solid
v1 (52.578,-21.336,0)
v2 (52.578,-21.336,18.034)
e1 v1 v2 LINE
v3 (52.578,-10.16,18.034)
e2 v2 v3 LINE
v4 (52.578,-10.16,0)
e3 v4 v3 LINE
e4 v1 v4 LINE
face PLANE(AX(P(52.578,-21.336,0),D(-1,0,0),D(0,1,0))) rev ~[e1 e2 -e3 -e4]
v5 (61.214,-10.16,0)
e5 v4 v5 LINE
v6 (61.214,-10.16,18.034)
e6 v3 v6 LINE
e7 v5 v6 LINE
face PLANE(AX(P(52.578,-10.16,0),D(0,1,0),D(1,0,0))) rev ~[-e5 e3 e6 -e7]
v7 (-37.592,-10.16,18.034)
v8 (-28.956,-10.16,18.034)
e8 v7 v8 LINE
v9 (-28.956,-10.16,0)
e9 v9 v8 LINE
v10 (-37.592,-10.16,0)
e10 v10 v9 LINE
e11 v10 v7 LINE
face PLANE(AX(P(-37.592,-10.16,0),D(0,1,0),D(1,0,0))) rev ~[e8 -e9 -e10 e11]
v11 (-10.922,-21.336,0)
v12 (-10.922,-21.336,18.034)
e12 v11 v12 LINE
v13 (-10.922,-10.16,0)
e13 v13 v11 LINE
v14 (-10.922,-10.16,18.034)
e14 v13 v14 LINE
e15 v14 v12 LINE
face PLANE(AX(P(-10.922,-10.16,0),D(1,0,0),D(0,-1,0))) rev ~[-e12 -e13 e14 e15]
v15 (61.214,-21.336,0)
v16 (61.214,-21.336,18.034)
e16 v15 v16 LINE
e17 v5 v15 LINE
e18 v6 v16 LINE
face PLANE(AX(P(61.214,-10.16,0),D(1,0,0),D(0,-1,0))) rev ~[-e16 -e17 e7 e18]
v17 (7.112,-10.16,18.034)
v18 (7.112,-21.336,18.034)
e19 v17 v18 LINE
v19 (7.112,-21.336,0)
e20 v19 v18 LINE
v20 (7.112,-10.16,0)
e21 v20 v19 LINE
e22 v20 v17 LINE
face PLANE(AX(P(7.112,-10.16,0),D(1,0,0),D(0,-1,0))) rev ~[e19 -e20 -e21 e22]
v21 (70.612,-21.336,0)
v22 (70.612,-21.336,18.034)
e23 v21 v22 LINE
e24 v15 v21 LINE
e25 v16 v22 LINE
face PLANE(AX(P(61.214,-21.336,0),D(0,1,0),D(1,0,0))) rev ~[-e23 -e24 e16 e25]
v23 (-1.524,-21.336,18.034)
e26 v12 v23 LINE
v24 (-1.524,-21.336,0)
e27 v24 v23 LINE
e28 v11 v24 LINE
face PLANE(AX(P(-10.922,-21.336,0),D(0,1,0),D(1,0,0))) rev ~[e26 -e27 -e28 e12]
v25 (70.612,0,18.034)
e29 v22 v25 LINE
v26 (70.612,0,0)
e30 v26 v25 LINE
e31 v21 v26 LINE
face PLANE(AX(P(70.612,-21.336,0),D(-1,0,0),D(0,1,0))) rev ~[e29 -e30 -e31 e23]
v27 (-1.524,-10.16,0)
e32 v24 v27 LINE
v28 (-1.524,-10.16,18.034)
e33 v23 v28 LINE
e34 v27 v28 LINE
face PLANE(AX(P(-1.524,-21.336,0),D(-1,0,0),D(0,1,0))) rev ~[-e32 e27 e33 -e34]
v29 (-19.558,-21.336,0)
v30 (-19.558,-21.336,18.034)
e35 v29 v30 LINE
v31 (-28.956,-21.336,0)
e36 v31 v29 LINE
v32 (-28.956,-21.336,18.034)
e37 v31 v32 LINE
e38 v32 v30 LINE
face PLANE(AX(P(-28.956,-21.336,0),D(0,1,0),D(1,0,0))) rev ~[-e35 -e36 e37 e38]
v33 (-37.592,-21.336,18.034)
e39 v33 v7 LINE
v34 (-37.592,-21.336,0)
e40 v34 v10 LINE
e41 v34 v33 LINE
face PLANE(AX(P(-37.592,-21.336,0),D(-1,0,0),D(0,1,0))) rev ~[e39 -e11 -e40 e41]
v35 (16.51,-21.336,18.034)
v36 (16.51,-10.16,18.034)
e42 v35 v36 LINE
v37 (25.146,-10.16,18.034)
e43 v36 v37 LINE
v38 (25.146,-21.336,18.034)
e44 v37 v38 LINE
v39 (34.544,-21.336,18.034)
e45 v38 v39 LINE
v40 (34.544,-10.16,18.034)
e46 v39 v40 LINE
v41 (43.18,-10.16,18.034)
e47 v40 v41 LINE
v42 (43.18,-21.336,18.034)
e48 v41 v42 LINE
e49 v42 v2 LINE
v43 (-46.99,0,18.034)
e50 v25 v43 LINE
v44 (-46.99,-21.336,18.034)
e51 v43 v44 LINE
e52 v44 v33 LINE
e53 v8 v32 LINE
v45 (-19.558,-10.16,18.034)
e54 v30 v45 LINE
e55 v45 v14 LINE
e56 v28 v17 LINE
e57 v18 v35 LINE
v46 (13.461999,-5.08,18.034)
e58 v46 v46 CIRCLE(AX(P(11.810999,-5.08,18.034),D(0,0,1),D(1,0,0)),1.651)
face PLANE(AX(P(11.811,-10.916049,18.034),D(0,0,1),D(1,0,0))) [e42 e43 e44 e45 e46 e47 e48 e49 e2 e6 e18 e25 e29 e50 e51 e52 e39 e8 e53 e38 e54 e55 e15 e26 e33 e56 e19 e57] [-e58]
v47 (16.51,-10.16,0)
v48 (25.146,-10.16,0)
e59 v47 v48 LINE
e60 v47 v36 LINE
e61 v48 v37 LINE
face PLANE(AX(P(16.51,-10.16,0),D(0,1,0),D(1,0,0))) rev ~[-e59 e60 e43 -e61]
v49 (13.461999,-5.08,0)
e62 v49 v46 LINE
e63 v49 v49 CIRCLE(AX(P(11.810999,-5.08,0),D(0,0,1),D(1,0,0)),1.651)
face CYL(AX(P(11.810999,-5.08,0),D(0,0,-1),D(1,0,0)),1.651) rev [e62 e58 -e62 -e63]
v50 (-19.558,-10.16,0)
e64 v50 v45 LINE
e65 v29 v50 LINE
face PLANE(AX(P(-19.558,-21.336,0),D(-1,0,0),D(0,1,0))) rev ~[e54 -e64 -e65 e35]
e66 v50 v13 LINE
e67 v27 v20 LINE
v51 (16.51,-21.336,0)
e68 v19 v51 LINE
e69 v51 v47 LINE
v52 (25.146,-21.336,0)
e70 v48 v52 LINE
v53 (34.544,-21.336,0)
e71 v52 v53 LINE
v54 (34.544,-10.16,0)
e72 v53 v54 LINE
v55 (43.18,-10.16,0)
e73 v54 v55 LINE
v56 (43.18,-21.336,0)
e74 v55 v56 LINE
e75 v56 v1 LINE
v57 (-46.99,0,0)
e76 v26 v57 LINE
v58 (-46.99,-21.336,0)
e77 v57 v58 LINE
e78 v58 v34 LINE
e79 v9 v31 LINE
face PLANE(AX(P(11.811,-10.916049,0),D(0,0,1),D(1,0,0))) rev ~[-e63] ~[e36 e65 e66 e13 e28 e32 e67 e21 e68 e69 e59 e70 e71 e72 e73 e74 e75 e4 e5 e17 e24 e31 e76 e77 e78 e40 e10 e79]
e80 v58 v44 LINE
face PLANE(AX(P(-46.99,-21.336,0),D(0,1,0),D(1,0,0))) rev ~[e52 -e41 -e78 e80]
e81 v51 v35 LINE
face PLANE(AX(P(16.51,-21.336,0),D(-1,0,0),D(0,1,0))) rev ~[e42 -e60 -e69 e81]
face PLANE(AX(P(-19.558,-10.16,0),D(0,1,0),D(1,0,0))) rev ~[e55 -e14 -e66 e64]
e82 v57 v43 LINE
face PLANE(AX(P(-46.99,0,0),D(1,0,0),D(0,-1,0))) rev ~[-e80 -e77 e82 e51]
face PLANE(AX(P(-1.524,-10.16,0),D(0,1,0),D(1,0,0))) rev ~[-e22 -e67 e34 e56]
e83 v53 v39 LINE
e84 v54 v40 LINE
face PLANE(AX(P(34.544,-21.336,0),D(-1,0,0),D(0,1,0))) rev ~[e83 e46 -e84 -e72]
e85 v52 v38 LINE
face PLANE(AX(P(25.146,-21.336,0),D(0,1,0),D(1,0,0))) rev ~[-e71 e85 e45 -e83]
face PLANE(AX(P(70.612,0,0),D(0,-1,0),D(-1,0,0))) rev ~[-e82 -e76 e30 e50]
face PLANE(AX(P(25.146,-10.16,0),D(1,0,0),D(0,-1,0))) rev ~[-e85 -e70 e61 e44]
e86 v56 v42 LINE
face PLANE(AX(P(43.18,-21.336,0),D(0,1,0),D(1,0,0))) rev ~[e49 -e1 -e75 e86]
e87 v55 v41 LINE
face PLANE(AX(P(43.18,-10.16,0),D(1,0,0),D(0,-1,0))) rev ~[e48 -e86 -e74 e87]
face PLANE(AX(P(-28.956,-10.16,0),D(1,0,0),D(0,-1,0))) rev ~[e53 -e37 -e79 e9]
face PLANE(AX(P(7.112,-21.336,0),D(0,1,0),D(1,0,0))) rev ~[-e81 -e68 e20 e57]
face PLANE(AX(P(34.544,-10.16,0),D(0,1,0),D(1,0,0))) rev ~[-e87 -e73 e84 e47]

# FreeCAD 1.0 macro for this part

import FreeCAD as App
import Part
import Sketcher
Q = App.Units.Quantity

doc = App.newDocument("Part")
body = doc.addObject("PartDesign::Body", "Body")

# Sketch on XY plane
sketch1 = doc.addObject("Sketcher::SketchObject", "Sketch")
body.addObject(sketch1)
sketch1.AttachmentSupport = (doc.XY_Plane, [""])
sketch1.MapMode = "FlatFace"
sketch1.addGeometry(Part.LineSegment(App.Vector(70.6, 0, 0), App.Vector(-47, 0, 0)), False)
sketch1.addGeometry(Part.LineSegment(App.Vector(-47, 0, 0), App.Vector(-47, -21.3, 0)), False)
sketch1.addGeometry(Part.LineSegment(App.Vector(-47, -21.3, 0), App.Vector(-37.6, -21.3, 0)), False)
sketch1.addGeometry(Part.LineSegment(App.Vector(-37.6, -21.3, 0), App.Vector(-37.6, -10.2, 0)), False)
sketch1.addGeometry(Part.LineSegment(App.Vector(-37.6, -10.2, 0), App.Vector(-29, -10.2, 0)), False)
sketch1.addGeometry(Part.LineSegment(App.Vector(-29, -10.2, 0), App.Vector(-29, -21.3, 0)), False)
sketch1.addGeometry(Part.LineSegment(App.Vector(-29, -21.3, 0), App.Vector(-19.6, -21.3, 0)), False)
sketch1.addGeometry(Part.LineSegment(App.Vector(-19.6, -21.3, 0), App.Vector(-19.6, -10.2, 0)), False)
sketch1.addGeometry(Part.LineSegment(App.Vector(-19.6, -10.2, 0), App.Vector(-10.9, -10.2, 0)), False)
sketch1.addGeometry(Part.LineSegment(App.Vector(-10.9, -10.2, 0), App.Vector(-10.9, -21.3, 0)), False)
sketch1.addGeometry(Part.LineSegment(App.Vector(-10.9, -21.3, 0), App.Vector(-1.5, -21.3, 0)), False)
sketch1.addGeometry(Part.LineSegment(App.Vector(-1.5, -21.3, 0), App.Vector(-1.5, -10.2, 0)), False)
sketch1.addGeometry(Part.LineSegment(App.Vector(-1.5, -10.2, 0), App.Vector(7.1, -10.2, 0)), False)
sketch1.addGeometry(Part.LineSegment(App.Vector(7.1, -10.2, 0), App.Vector(7.1, -21.3, 0)), False)
sketch1.addGeometry(Part.LineSegment(App.Vector(7.1, -21.3, 0), App.Vector(16.5, -21.3, 0)), False)
sketch1.addGeometry(Part.LineSegment(App.Vector(16.5, -21.3, 0), App.Vector(16.5, -10.2, 0)), False)
sketch1.addGeometry(Part.LineSegment(App.Vector(16.5, -10.2, 0), App.Vector(25.1, -10.2, 0)), False)
sketch1.addGeometry(Part.LineSegment(App.Vector(25.1, -10.2, 0), App.Vector(25.1, -21.3, 0)), False)
sketch1.addGeometry(Part.LineSegment(App.Vector(25.1, -21.3, 0), App.Vector(34.5, -21.3, 0)), False)
sketch1.addGeometry(Part.LineSegment(App.Vector(34.5, -21.3, 0), App.Vector(34.5, -10.2, 0)), False)
sketch1.addGeometry(Part.LineSegment(App.Vector(34.5, -10.2, 0), App.Vector(43.2, -10.2, 0)), False)
sketch1.addGeometry(Part.LineSegment(App.Vector(43.2, -10.2, 0), App.Vector(43.2, -21.3, 0)), False)
sketch1.addGeometry(Part.LineSegment(App.Vector(43.2, -21.3, 0), App.Vector(52.6, -21.3, 0)), False)
sketch1.addGeometry(Part.LineSegment(App.Vector(52.6, -21.3, 0), App.Vector(52.6, -10.2, 0)), False)
sketch1.addGeometry(Part.LineSegment(App.Vector(52.6, -10.2, 0), App.Vector(61.2, -10.2, 0)), False)
sketch1.addGeometry(Part.LineSegment(App.Vector(61.2, -10.2, 0), App.Vector(61.2, -21.3, 0)), False)
sketch1.addGeometry(Part.LineSegment(App.Vector(61.2, -21.3, 0), App.Vector(70.6, -21.3, 0)), False)
sketch1.addGeometry(Part.LineSegment(App.Vector(70.6, -21.3, 0), App.Vector(70.6, 0, 0)), False)
sketch1.addGeometry(Part.Circle(App.Vector(11.8, -5.1, 0), App.Vector(0, 0, 1), 1.7), False)
sketch1.addConstraint(Sketcher.Constraint("Coincident", 0, 2, 1, 1))
sketch1.addConstraint(Sketcher.Constraint("Coincident", 1, 2, 2, 1))
sketch1.addConstraint(Sketcher.Constraint("Coincident", 2, 2, 3, 1))
sketch1.addConstraint(Sketcher.Constraint("Coincident", 3, 2, 4, 1))
sketch1.addConstraint(Sketcher.Constraint("Coincident", 4, 2, 5, 1))
sketch1.addConstraint(Sketcher.Constraint("Coincident", 5, 2, 6, 1))
sketch1.addConstraint(Sketcher.Constraint("Coincident", 6, 2, 7, 1))
sketch1.addConstraint(Sketcher.Constraint("Coincident", 7, 2, 8, 1))
sketch1.addConstraint(Sketcher.Constraint("Coincident", 8, 2, 9, 1))
sketch1.addConstraint(Sketcher.Constraint("Coincident", 9, 2, 10, 1))
sketch1.addConstraint(Sketcher.Constraint("Coincident", 10, 2, 11, 1))
sketch1.addConstraint(Sketcher.Constraint("Coincident", 11, 2, 12, 1))
sketch1.addConstraint(Sketcher.Constraint("Coincident", 12, 2, 13, 1))
sketch1.addConstraint(Sketcher.Constraint("Coincident", 13, 2, 14, 1))
sketch1.addConstraint(Sketcher.Constraint("Coincident", 14, 2, 15, 1))
sketch1.addConstraint(Sketcher.Constraint("Coincident", 15, 2, 16, 1))
sketch1.addConstraint(Sketcher.Constraint("Coincident", 16, 2, 17, 1))
sketch1.addConstraint(Sketcher.Constraint("Coincident", 17, 2, 18, 1))
sketch1.addConstraint(Sketcher.Constraint("Coincident", 18, 2, 19, 1))
sketch1.addConstraint(Sketcher.Constraint("Coincident", 19, 2, 20, 1))
sketch1.addConstraint(Sketcher.Constraint("Coincident", 20, 2, 21, 1))
sketch1.addConstraint(Sketcher.Constraint("Coincident", 21, 2, 22, 1))
sketch1.addConstraint(Sketcher.Constraint("Coincident", 22, 2, 23, 1))
sketch1.addConstraint(Sketcher.Constraint("Coincident", 23, 2, 24, 1))
sketch1.addConstraint(Sketcher.Constraint("Coincident", 24, 2, 25, 1))
sketch1.addConstraint(Sketcher.Constraint("Coincident", 25, 2, 26, 1))
sketch1.addConstraint(Sketcher.Constraint("Coincident", 26, 2, 27, 1))
sketch1.addConstraint(Sketcher.Constraint("Coincident", 27, 2, 0, 1))
sketch1.addConstraint(Sketcher.Constraint("Horizontal", 0))
sketch1.addConstraint(Sketcher.Constraint("Vertical", 1))
sketch1.addConstraint(Sketcher.Constraint("Horizontal", 2))
sketch1.addConstraint(Sketcher.Constraint("Vertical", 3))
sketch1.addConstraint(Sketcher.Constraint("Horizontal", 4))
sketch1.addConstraint(Sketcher.Constraint("Vertical", 5))
sketch1.addConstraint(Sketcher.Constraint("Horizontal", 6))
sketch1.addConstraint(Sketcher.Constraint("Vertical", 7))
sketch1.addConstraint(Sketcher.Constraint("Horizontal", 8))
sketch1.addConstraint(Sketcher.Constraint("Vertical", 9))
sketch1.addConstraint(Sketcher.Constraint("Horizontal", 10))
sketch1.addConstraint(Sketcher.Constraint("Vertical", 11))
sketch1.addConstraint(Sketcher.Constraint("Horizontal", 12))
sketch1.addConstraint(Sketcher.Constraint("Vertical", 13))
sketch1.addConstraint(Sketcher.Constraint("Horizontal", 14))
sketch1.addConstraint(Sketcher.Constraint("Vertical", 15))
sketch1.addConstraint(Sketcher.Constraint("Horizontal", 16))
sketch1.addConstraint(Sketcher.Constraint("Vertical", 17))
sketch1.addConstraint(Sketcher.Constraint("Horizontal", 18))
sketch1.addConstraint(Sketcher.Constraint("Vertical", 19))
sketch1.addConstraint(Sketcher.Constraint("Horizontal", 20))
sketch1.addConstraint(Sketcher.Constraint("Vertical", 21))
sketch1.addConstraint(Sketcher.Constraint("Horizontal", 22))
sketch1.addConstraint(Sketcher.Constraint("Vertical", 23))
sketch1.addConstraint(Sketcher.Constraint("Horizontal", 24))
sketch1.addConstraint(Sketcher.Constraint("Vertical", 25))
sketch1.addConstraint(Sketcher.Constraint("Horizontal", 26))
sketch1.addConstraint(Sketcher.Constraint("Vertical", 27))
sketch1.addConstraint(Sketcher.Constraint("PointOnObject", 0, 2, -1))
sketch1.addConstraint(Sketcher.Constraint("Horizontal", 2, 2, 5, 2))
sketch1.addConstraint(Sketcher.Constraint("Horizontal", 4, 2, 7, 2))
sketch1.addConstraint(Sketcher.Constraint("Horizontal", 6, 2, 9, 2))
sketch1.addConstraint(Sketcher.Constraint("Horizontal", 8, 2, 11, 2))
sketch1.addConstraint(Sketcher.Constraint("Horizontal", 10, 2, 13, 2))
sketch1.addConstraint(Sketcher.Constraint("Horizontal", 12, 2, 15, 2))
sketch1.addConstraint(Sketcher.Constraint("Horizontal", 14, 2, 17, 2))
sketch1.addConstraint(Sketcher.Constraint("Horizontal", 16, 2, 19, 2))
sketch1.addConstraint(Sketcher.Constraint("Horizontal", 18, 2, 21, 2))
sketch1.addConstraint(Sketcher.Constraint("Horizontal", 20, 2, 23, 2))
sketch1.addConstraint(Sketcher.Constraint("Horizontal", 22, 2, 25, 2))
sketch1.addConstraint(Sketcher.Constraint("Equal", 2, 6))
sketch1.addConstraint(Sketcher.Constraint("Equal", 4, 8))
sketch1.addConstraint(Sketcher.Constraint("Equal", 6, 10))
sketch1.addConstraint(Sketcher.Constraint("Equal", 8, 12))
sketch1.addConstraint(Sketcher.Constraint("Equal", 10, 14))
sketch1.addConstraint(Sketcher.Constraint("Equal", 12, 16))
sketch1.addConstraint(Sketcher.Constraint("Equal", 14, 18))
sketch1.addConstraint(Sketcher.Constraint("Equal", 16, 20))
sketch1.addConstraint(Sketcher.Constraint("Equal", 18, 22))
sketch1.addConstraint(Sketcher.Constraint("Equal", 20, 24))
sketch1.addConstraint(Sketcher.Constraint("Equal", 22, 26))
sketch1.addConstraint(Sketcher.Constraint("Diameter", 28, Q("0.13 in")))
sketch1.addConstraint(Sketcher.Constraint("DistanceX", 0, 2, 0, 1, Q("4.63 in")))
sketch1.addConstraint(Sketcher.Constraint("DistanceX", 2, 1, 2, 2, Q("0.37 in")))
sketch1.addConstraint(Sketcher.Constraint("DistanceY", 1, 2, 1, 1, Q("0.84 in")))
sketch1.addConstraint(Sketcher.Constraint("DistanceY", 3, 1, 3, 2, Q("0.44 in")))
sketch1.addConstraint(Sketcher.Constraint("DistanceY", 28, 3, -1, 1, Q("0.2 in")))
sketch1.addConstraint(Sketcher.Constraint("DistanceX", -1, 1, 20, 2, Q("1.7 in")))
sketch1.addConstraint(Sketcher.Constraint("DistanceX", -1, 1, 28, 3, Q("0.465 in")))
pad1 = doc.addObject("PartDesign::Pad", "Pad")
body.addObject(pad1)
pad1.Profile = sketch1
pad1.Length = Q("0.71 in")

doc.recompute()
